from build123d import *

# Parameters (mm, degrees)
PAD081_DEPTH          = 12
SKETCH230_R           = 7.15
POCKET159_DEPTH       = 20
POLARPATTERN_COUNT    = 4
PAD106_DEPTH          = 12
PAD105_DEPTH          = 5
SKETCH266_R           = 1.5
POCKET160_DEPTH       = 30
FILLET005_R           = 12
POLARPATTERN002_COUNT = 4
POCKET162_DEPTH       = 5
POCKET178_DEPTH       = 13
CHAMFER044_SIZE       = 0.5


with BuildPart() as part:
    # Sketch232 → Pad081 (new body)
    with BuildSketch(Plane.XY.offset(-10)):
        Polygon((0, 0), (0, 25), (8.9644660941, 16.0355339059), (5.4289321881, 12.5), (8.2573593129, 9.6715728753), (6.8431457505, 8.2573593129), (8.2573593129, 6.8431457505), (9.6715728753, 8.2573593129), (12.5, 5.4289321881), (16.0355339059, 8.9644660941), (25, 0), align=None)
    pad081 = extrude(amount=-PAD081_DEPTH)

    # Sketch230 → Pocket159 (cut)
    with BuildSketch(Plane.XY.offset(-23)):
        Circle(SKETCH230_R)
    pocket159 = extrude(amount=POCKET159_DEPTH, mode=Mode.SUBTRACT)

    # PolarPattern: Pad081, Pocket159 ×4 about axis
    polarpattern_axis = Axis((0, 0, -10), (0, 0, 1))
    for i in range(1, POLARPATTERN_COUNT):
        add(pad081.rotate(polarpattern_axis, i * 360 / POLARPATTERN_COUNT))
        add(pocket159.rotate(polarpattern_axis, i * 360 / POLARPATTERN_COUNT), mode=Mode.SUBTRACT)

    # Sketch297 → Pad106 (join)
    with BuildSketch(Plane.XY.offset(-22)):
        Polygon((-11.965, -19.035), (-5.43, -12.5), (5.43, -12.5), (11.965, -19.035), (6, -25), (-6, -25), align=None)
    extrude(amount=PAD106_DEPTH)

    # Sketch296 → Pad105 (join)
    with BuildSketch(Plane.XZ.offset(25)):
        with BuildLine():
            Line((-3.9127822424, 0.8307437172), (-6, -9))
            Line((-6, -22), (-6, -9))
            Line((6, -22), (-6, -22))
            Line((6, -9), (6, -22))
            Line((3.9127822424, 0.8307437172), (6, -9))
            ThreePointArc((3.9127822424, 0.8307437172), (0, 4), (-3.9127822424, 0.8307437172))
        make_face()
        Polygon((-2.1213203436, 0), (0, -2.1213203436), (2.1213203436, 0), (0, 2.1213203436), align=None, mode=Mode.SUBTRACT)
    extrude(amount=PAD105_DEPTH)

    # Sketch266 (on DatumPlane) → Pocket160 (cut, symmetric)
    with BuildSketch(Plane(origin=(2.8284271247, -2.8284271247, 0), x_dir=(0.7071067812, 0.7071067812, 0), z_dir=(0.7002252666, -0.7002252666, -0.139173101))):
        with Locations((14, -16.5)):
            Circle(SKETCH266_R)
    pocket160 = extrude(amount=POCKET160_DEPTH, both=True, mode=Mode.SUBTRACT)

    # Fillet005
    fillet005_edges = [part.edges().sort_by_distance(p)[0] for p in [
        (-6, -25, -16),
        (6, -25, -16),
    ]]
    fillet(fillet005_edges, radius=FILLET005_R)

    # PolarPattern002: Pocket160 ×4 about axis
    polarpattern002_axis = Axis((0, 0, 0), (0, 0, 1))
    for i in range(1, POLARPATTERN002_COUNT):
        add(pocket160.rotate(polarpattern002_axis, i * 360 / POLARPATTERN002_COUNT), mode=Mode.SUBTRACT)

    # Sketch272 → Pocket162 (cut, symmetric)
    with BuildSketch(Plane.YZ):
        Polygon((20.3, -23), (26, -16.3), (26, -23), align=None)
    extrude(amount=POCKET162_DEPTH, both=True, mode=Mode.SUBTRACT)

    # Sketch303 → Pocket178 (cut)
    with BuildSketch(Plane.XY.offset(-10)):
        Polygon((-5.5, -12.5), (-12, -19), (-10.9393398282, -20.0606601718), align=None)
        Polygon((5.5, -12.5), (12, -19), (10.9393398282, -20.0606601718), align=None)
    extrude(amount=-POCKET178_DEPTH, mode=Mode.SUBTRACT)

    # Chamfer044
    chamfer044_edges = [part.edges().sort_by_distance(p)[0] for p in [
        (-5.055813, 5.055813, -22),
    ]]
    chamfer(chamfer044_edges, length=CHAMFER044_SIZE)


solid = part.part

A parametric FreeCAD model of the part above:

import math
import FreeCAD as App
import Part
import Sketcher
Q = App.Units.Quantity


def edges_at(feature, points):
    """Names of the edges that pass closest to the given points."""
    edges = feature.Shape.Edges
    near = lambda p: min(range(len(edges)), key=lambda i: edges[i].distToShape(Part.Vertex(*p))[0])
    return sorted({f"Edge{near(p) + 1}" for p in points})


def add_polygon(sketch, points):
    """Adds a closed chain of lines whose ends are joined by coincident constraints."""
    first, n = sketch.GeometryCount, len(points)
    for a, b in zip(points, points[1:] + points[:1]):
        sketch.addGeometry(Part.LineSegment(App.Vector(*a, 0), App.Vector(*b, 0)), False)
    for i in range(n):
        sketch.addConstraint(Sketcher.Constraint("Coincident", first + i, 2, first + (i + 1) % n, 1))

doc = App.newDocument("Part")
params = doc.addObject("Spreadsheet::Sheet", "Params")
for row, (alias, value) in enumerate([
    ("sketch1_width", "25 mm"),
    ("sketch1_length", "5 mm"),
    ("sketch1_length2", "4 mm"),
    ("sketch1_length3", "2 mm"),
    ("pad1_length", "12 mm"),
    ("sketch2_diameter", "14.3 mm"),
    ("pocket1_length", "20 mm"),
    ("sketch3_width", "12 mm"),
    ("sketch3_width2", "10.86 mm"),
    ("pad2_length", "12 mm"),
    ("sketch4_radius", "4 mm"),
    ("sketch4_width", "12 mm"),
    ("sketch4_height", "13 mm"),
    ("sketch4_length", "3 mm"),
    ("pad3_length", "5 mm"),
    ("sketch5_diameter", "3 mm"),
    ("pocket2_length", "60 mm"),
    ("fillet_radius", "12 mm"),
    ("sketch6_width", "5.7 mm"),
    ("sketch6_height", "6.7 mm"),
    ("pocket3_length", "10 mm"),
    ("sketch7_length", "1.5 mm"),
    ("pocket4_length", "13 mm"),
    ("chamfer_size", "0.5 mm"),
], start=1):
    params.set(f"A{row}", alias)
    params.set(f"B{row}", "=" + value)
    params.setAlias(f"B{row}", alias)

body = doc.addObject("PartDesign::Body", "Body")

sketch1 = body.newObject("Sketcher::SketchObject", "Sketch")
sketch1.AttachmentSupport = (doc.getObject("XY_Plane"), [""])
sketch1.MapMode = "FlatFace"
sketch1.AttachmentOffset = App.Placement(App.Vector(0, 0, -10), App.Rotation())
add_polygon(sketch1, [(0, 25), (0, 0), (25, 0), (16, 9), (12.5, 5.4), (9.7, 8.3), (8.3, 6.8), (6.8, 8.3), (8.3, 9.7), (5.4, 12.5), (9, 16)])
sketch1.addConstraint(Sketcher.Constraint("Vertical", 0))
sketch1.addConstraint(Sketcher.Constraint("Horizontal", 1))
sketch1.addConstraint(Sketcher.Constraint("Coincident", 0, 2, -1, 1))
sketch1.addConstraint(Sketcher.Constraint("Perpendicular", 2, 3))
sketch1.addConstraint(Sketcher.Constraint("Perpendicular", 3, 4))
sketch1.addConstraint(Sketcher.Constraint("Perpendicular", 4, 5))
sketch1.addConstraint(Sketcher.Constraint("Perpendicular", 5, 6))
sketch1.addConstraint(Sketcher.Constraint("Perpendicular", 6, 7))
sketch1.addConstraint(Sketcher.Constraint("Perpendicular", 7, 8))
sketch1.addConstraint(Sketcher.Constraint("Perpendicular", 8, 9))
sketch1.addConstraint(Sketcher.Constraint("Perpendicular", 9, 10))
sketch1.addConstraint(Sketcher.Constraint("Horizontal", 4, 2, 6, 2))
sketch1.addConstraint(Sketcher.Constraint("Vertical", 5, 2, 7, 2))
sketch1.addConstraint(Sketcher.Constraint("Equal", 1, 0))
sketch1.addConstraint(Sketcher.Constraint("Equal", 5, 6))
sketch1.addConstraint(Sketcher.Constraint("Equal", 4, 8))
sketch1.addConstraint(Sketcher.Constraint("Equal", 2, 10))
sketch1.addConstraint(Sketcher.Constraint("DistanceX", 1, 1, 1, 2, Q("25 mm")))
sketch1.addConstraint(Sketcher.Constraint("Distance", 3, Q("5 mm")))
sketch1.addConstraint(Sketcher.Constraint("Distance", 4, Q("4 mm")))
sketch1.addConstraint(Sketcher.Constraint("Distance", 5, Q("2 mm")))
sketch1.setExpression("Constraints[28]", "Params.sketch1_width")
sketch1.setExpression("Constraints[29]", "Params.sketch1_length")
sketch1.setExpression("Constraints[30]", "Params.sketch1_length2")
sketch1.setExpression("Constraints[31]", "Params.sketch1_length3")
pad1 = body.newObject("PartDesign::Pad", "Pad")
pad1.Profile = sketch1
pad1.setExpression("Length", "Params.pad1_length")
pad1.Reversed = True

sketch2 = body.newObject("Sketcher::SketchObject", "Sketch001")
sketch2.AttachmentSupport = (doc.getObject("XY_Plane"), [""])
sketch2.MapMode = "FlatFace"
sketch2.AttachmentOffset = App.Placement(App.Vector(0, 0, -23), App.Rotation())
sketch2.addGeometry(Part.Circle(App.Vector(0, 0, 0), App.Vector(0, 0, 1), 7), False)
sketch2.addConstraint(Sketcher.Constraint("Coincident", 0, 3, -1, 1))
sketch2.addConstraint(Sketcher.Constraint("Diameter", 0, Q("14.3 mm")))
sketch2.setExpression("Constraints[1]", "Params.sketch2_diameter")
pocket1 = body.newObject("PartDesign::Pocket", "Pocket")
pocket1.Profile = sketch2
pocket1.setExpression("Length", "Params.pocket1_length")
pocket1.Reversed = True
doc.recompute()

polarpattern = body.newObject("PartDesign::PolarPattern", "PolarPattern")
polarpattern.Originals = [pad1, pocket1]
polarpattern.Axis = (doc.getObject("Z_Axis"), [""])
polarpattern.Angle = 360
polarpattern.Occurrences = 4
body.Tip = polarpattern

sketch3 = body.newObject("Sketcher::SketchObject", "Sketch002")
sketch3.AttachmentSupport = (doc.getObject("XY_Plane"), [""])
sketch3.MapMode = "FlatFace"
sketch3.AttachmentOffset = App.Placement(App.Vector(0, 0, -22), App.Rotation())
add_polygon(sketch3, [(-5, -12), (-12, -19), (-6, -25), (6, -25), (12, -19), (5, -12)])
sketch3.addConstraint(Sketcher.Constraint("Horizontal", 2))
sketch3.addConstraint(Sketcher.Constraint("Horizontal", 5))
sketch3.addConstraint(Sketcher.Constraint("Symmetric", 0, 2, 3, 2, -2))
sketch3.addConstraint(Sketcher.Constraint("Perpendicular", 0, 1))
sketch3.addConstraint(Sketcher.Constraint("Perpendicular", 1, 3))
sketch3.addConstraint(Sketcher.Constraint("Perpendicular", 3, 4))
sketch3.addConstraint(Sketcher.Constraint("Equal", 1, 3))
sketch3.addConstraint(Sketcher.Constraint("DistanceX", 2, 1, 2, 2, Q("12 mm")))
sketch3.addConstraint(Sketcher.Constraint("DistanceY", 1, 2, -1, 1, Q("25 mm")))
sketch3.addConstraint(Sketcher.Constraint("DistanceX", 5, 2, 5, 1, Q("10.86 mm")))
sketch3.addConstraint(Sketcher.Constraint("DistanceY", 4, 2, -1, 1, Q("12.5 mm")))
sketch3.setExpression("Constraints[13]", "Params.sketch3_width")
sketch3.setExpression("Constraints[15]", "Params.sketch3_width2")
pad2 = body.newObject("PartDesign::Pad", "Pad001")
pad2.Profile = sketch3
pad2.setExpression("Length", "Params.pad2_length")

sketch4 = body.newObject("Sketcher::SketchObject", "Sketch003")
sketch4.AttachmentSupport = (doc.getObject("XZ_Plane"), [""])
sketch4.MapMode = "FlatFace"
sketch4.AttachmentOffset = App.Placement(App.Vector(0, 0, 25), App.Rotation())
sketch4.addGeometry(Part.LineSegment(App.Vector(-3.9, 0.8, 0), App.Vector(-6, -9, 0)), False)
sketch4.addGeometry(Part.LineSegment(App.Vector(-6, -9, 0), App.Vector(-6, -22, 0)), False)
sketch4.addGeometry(Part.LineSegment(App.Vector(-6, -22, 0), App.Vector(6, -22, 0)), False)
sketch4.addGeometry(Part.LineSegment(App.Vector(6, -22, 0), App.Vector(6, -9, 0)), False)
sketch4.addGeometry(Part.LineSegment(App.Vector(6, -9, 0), App.Vector(3.9, 0.8, 0)), False)
sketch4.addGeometry(Part.ArcOfCircle(Part.Circle(App.Vector(0, 0, 0), App.Vector(0, 0, 1), 4), math.radians(12), math.radians(168)), False)
add_polygon(sketch4, [(0, -2.1), (-2.1, 0), (0, 2.1), (2.1, 0)])
sketch4.addConstraint(Sketcher.Constraint("Coincident", 0, 2, 1, 1))
sketch4.addConstraint(Sketcher.Constraint("Coincident", 1, 2, 2, 1))
sketch4.addConstraint(Sketcher.Constraint("Coincident", 2, 2, 3, 1))
sketch4.addConstraint(Sketcher.Constraint("Coincident", 3, 2, 4, 1))
sketch4.addConstraint(Sketcher.Constraint("Tangent", 4, 2, 5, 1))
sketch4.addConstraint(Sketcher.Constraint("Tangent", 5, 2, 0, 1))
sketch4.addConstraint(Sketcher.Constraint("Vertical", 1))
sketch4.addConstraint(Sketcher.Constraint("Horizontal", 2))
sketch4.addConstraint(Sketcher.Constraint("Vertical", 3))
sketch4.addConstraint(Sketcher.Constraint("Coincident", 5, 3, -1, 1))
sketch4.addConstraint(Sketcher.Constraint("Symmetric", 6, 2, 8, 2, -1, 1))
sketch4.addConstraint(Sketcher.Constraint("Symmetric", 7, 2, 9, 2, -1, 1))
sketch4.addConstraint(Sketcher.Constraint("Symmetric", 0, 2, 3, 2, -2))
sketch4.addConstraint(Sketcher.Constraint("PointOnObject", 6, 2, -1))
sketch4.addConstraint(Sketcher.Constraint("PointOnObject", 7, 2, -2))
sketch4.addConstraint(Sketcher.Constraint("Perpendicular", 6, 7))
sketch4.addConstraint(Sketcher.Constraint("Radius", 5, Q("4 mm")))
sketch4.addConstraint(Sketcher.Constraint("DistanceX", 2, 1, 2, 2, Q("12 mm")))
sketch4.addConstraint(Sketcher.Constraint("DistanceY", 1, 2, 1, 1, Q("13 mm")))
sketch4.addConstraint(Sketcher.Constraint("Distance", 6, Q("3 mm")))
sketch4.addConstraint(Sketcher.Constraint("DistanceY", 0, 2, -1, 1, Q("9 mm")))
sketch4.setExpression("Constraints[20]", "Params.sketch4_radius")
sketch4.setExpression("Constraints[21]", "Params.sketch4_width")
sketch4.setExpression("Constraints[22]", "Params.sketch4_height")
sketch4.setExpression("Constraints[23]", "Params.sketch4_length")
pad3 = body.newObject("PartDesign::Pad", "Pad002")
pad3.Profile = sketch4
pad3.setExpression("Length", "Params.pad3_length")

sketch5 = body.newObject("Sketcher::SketchObject", "Sketch004")
sketch5.Placement = App.Placement(App.Vector(2.828427, -2.828427, 0), App.Rotation(App.Vector(0.707106781, 0.707106781, 0), App.Vector(0.098410243, -0.098410243, 0.990268069), App.Vector(0.700225267, -0.700225267, -0.139173101), "ZXY"))
sketch5.addGeometry(Part.Circle(App.Vector(14, -16.5, 0), App.Vector(0, 0, 1), 1.5), False)
sketch5.addConstraint(Sketcher.Constraint("Diameter", 0, Q("3 mm")))
sketch5.addConstraint(Sketcher.Constraint("DistanceX", -1, 1, 0, 3, Q("14 mm")))
sketch5.addConstraint(Sketcher.Constraint("DistanceY", 0, 3, -1, 1, Q("16.5 mm")))
sketch5.setExpression("Constraints[0]", "Params.sketch5_diameter")
pocket2 = body.newObject("PartDesign::Pocket", "Pocket001")
pocket2.Profile = sketch5
pocket2.setExpression("Length", "Params.pocket2_length")
pocket2.Midplane = True
doc.recompute()

fillet = body.newObject("PartDesign::Fillet", "Fillet")
fillet.Base = (pocket2, edges_at(pocket2, [(-6, -25, -16), (6, -25, -16)]))
fillet.setExpression("Radius", "Params.fillet_radius")
doc.recompute()

polarpattern2 = body.newObject("PartDesign::PolarPattern", "PolarPattern001")
polarpattern2.Originals = [pocket2]
polarpattern2.Axis = (doc.getObject("Z_Axis"), [""])
polarpattern2.Angle = 360
polarpattern2.Occurrences = 4
body.Tip = polarpattern2

sketch6 = body.newObject("Sketcher::SketchObject", "Sketch005")
sketch6.AttachmentSupport = (doc.getObject("YZ_Plane"), [""])
sketch6.MapMode = "FlatFace"
add_polygon(sketch6, [(26, -16), (20, -23), (26, -23)])
sketch6.addConstraint(Sketcher.Constraint("Horizontal", 1))
sketch6.addConstraint(Sketcher.Constraint("Vertical", 2))
sketch6.addConstraint(Sketcher.Constraint("DistanceX", 1, 1, 1, 2, Q("5.7 mm")))
sketch6.addConstraint(Sketcher.Constraint("DistanceY", 2, 1, 2, 2, Q("6.7 mm")))
sketch6.addConstraint(Sketcher.Constraint("DistanceY", 0, 2, -1, 1, Q("23 mm")))
sketch6.addConstraint(Sketcher.Constraint("DistanceX", -1, 1, 1, 2, Q("26 mm")))
sketch6.setExpression("Constraints[5]", "Params.sketch6_width")
sketch6.setExpression("Constraints[6]", "Params.sketch6_height")
pocket3 = body.newObject("PartDesign::Pocket", "Pocket002")
pocket3.Profile = sketch6
pocket3.setExpression("Length", "Params.pocket3_length")
pocket3.Midplane = True

sketch7 = body.newObject("Sketcher::SketchObject", "Sketch006")
sketch7.AttachmentSupport = (doc.getObject("XY_Plane"), [""])
sketch7.MapMode = "FlatFace"
sketch7.AttachmentOffset = App.Placement(App.Vector(0, 0, -10), App.Rotation())
add_polygon(sketch7, [(-5.5, -12.5), (-12, -19), (-10.9, -20.1)])
add_polygon(sketch7, [(12, -19), (5.5, -12.5), (10.9, -20.1)])
sketch7.addConstraint(Sketcher.Constraint("Symmetric", 2, 2, 3, 2, -2))
sketch7.addConstraint(Sketcher.Constraint("Symmetric", 1, 2, 4, 2, -2))
sketch7.addConstraint(Sketcher.Constraint("Symmetric", 0, 2, 5, 2, -2))
sketch7.addConstraint(Sketcher.Constraint("Perpendicular", 0, 1))
sketch7.addConstraint(Sketcher.Constraint("Parallel", 1, 3))
sketch7.addConstraint(Sketcher.Constraint("DistanceX", 0, 2, -1, 1, Q("12 mm")))
sketch7.addConstraint(Sketcher.Constraint("DistanceY", 0, 2, -1, 1, Q("19 mm")))
sketch7.addConstraint(Sketcher.Constraint("DistanceX", 2, 2, 3, 2, Q("11 mm")))
sketch7.addConstraint(Sketcher.Constraint("Distance", 1, Q("1.5 mm")))
sketch7.setExpression("Constraints[14]", "Params.sketch7_length")
pocket4 = body.newObject("PartDesign::Pocket", "Pocket003")
pocket4.Profile = sketch7
pocket4.setExpression("Length", "Params.pocket4_length")
doc.recompute()

chamfer = body.newObject("PartDesign::Chamfer", "Chamfer")
chamfer.Base = (pocket4, edges_at(pocket4, [(0, 7.15, -22)]))
chamfer.setExpression("Size", "Params.chamfer_size")

doc.recompute()
